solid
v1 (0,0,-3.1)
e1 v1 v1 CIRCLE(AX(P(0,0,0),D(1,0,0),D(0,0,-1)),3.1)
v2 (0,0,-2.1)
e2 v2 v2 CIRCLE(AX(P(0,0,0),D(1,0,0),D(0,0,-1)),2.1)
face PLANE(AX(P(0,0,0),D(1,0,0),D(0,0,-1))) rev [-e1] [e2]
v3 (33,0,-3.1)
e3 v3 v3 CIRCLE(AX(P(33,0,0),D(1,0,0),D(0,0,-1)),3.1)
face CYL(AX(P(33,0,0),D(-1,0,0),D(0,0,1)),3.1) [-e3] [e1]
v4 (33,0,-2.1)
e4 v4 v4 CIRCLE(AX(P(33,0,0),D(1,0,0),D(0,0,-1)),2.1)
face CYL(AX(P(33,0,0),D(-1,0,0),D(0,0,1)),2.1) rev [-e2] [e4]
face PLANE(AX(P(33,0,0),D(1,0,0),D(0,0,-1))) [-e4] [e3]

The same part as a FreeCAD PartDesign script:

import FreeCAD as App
import Part
import Sketcher
from FreeCAD import Vector

doc = App.newDocument("Part")
params = doc.addObject("Spreadsheet::Sheet", "Params")
for row, (alias, value) in enumerate([
    ("sketch1_diameter", "6.2 mm"),
    ("sketch1_diameter2", "4.2 mm"),
    ("pad1_length", "33 mm"),
], start=1):
    params.set(f"A{row}", alias)
    params.set(f"B{row}", "=" + value)
    params.setAlias(f"B{row}", alias)

body = doc.addObject("PartDesign::Body", "Body")

# Sketch on YZ plane
sketch1 = doc.addObject("Sketcher::SketchObject", "Sketch")
body.addObject(sketch1)
sketch1.AttachmentSupport = (doc.YZ_Plane, [""])
sketch1.MapMode = "FlatFace"
sketch1.addGeometry([
    Part.Circle(Vector(0, 0, 0), Vector(0, 0, 1), 3.1),
    Part.Circle(Vector(0, 0, 0), Vector(0, 0, 1), 2.1),
], False)
sketch1.addConstraint([
    Sketcher.Constraint("Coincident", 0, 3, -1, 1),
    Sketcher.Constraint("Coincident", 1, 3, -1, 1),
    Sketcher.Constraint("Diameter", 0, 6.2),
    Sketcher.Constraint("Diameter", 1, 4.2),
])
sketch1.setExpression("Constraints[2]", "Params.sketch1_diameter")
sketch1.setExpression("Constraints[3]", "Params.sketch1_diameter2")
pad1 = doc.addObject("PartDesign::Pad", "Pad")
body.addObject(pad1)
pad1.Profile = sketch1
pad1.setExpression("Length", "Params.pad1_length")

doc.recompute()
